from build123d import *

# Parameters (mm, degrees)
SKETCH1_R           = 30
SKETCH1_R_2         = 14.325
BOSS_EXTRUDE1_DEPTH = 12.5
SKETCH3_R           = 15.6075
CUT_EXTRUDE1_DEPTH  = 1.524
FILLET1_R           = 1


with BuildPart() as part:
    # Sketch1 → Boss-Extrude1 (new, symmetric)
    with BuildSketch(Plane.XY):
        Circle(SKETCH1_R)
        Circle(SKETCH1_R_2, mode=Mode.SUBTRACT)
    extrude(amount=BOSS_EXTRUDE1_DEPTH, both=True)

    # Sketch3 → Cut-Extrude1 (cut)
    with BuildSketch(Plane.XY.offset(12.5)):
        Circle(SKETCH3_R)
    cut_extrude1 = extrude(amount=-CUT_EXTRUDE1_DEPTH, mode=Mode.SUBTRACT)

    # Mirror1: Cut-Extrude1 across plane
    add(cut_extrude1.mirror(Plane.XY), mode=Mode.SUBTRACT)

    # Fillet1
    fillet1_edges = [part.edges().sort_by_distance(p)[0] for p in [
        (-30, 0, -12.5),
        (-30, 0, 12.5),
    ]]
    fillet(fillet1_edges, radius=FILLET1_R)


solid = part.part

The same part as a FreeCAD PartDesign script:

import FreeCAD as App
import Part
import Sketcher
Q = App.Units.Quantity


def edges_at(feature, points):
    """Names of the edges that pass closest to the given points."""
    edges = feature.Shape.Edges
    near = lambda p: min(range(len(edges)), key=lambda i: edges[i].distToShape(Part.Vertex(*p))[0])
    return sorted({f"Edge{near(p) + 1}" for p in points})

doc = App.newDocument("Part")
body = doc.addObject("PartDesign::Body", "Body")

# Sketch on XY plane
sketch1 = body.newObject("Sketcher::SketchObject", "Sketch")
sketch1.AttachmentSupport = (doc.getObject("XY_Plane"), [""])
sketch1.MapMode = "FlatFace"
sketch1.addGeometry([
    Part.Circle(App.Vector(0, 0, 0), App.Vector(0, 0, 1), 30),
    Part.Circle(App.Vector(0, 0, 0), App.Vector(0, 0, 1), 14.325),
], False)
sketch1.addConstraint([
    Sketcher.Constraint("Coincident", 0, 3, -1, 1),
    Sketcher.Constraint("Coincident", 1, 3, -1, 1),
    Sketcher.Constraint("Diameter", 0, Q("60 mm")),
    Sketcher.Constraint("Diameter", 1, Q("28.65 mm")),
])
pad1 = body.newObject("PartDesign::Pad", "Pad")
pad1.Profile = sketch1
pad1.Length = 25
pad1.Midplane = True

# Sketch on XY plane
sketch2 = body.newObject("Sketcher::SketchObject", "Sketch001")
sketch2.AttachmentSupport = (doc.getObject("XY_Plane"), [""])
sketch2.MapMode = "FlatFace"
sketch2.AttachmentOffset = App.Placement(App.Vector(0, 0, 12.5), App.Rotation())
sketch2.addGeometry(Part.Circle(App.Vector(0, 0, 0), App.Vector(0, 0, 1), 15.6075), False)
sketch2.addConstraint([
    Sketcher.Constraint("Coincident", 0, 3, -1, 1),
    Sketcher.Constraint("Diameter", 0, Q("31.215 mm")),
])
pocket1 = body.newObject("PartDesign::Pocket", "Pocket")
pocket1.Profile = sketch2
pocket1.Length = 1.524
doc.recompute()

mirrored = body.newObject("PartDesign::Mirrored", "Mirrored")
mirrored.Originals = [pocket1]
mirrored.MirrorPlane = (doc.getObject("XY_Plane"), [""])
body.Tip = mirrored
doc.recompute()

fillet = body.newObject("PartDesign::Fillet", "Fillet")
fillet.Base = (mirrored, edges_at(mirrored, [(-30, 0, -12.5), (-30, 0, 12.5)]))
fillet.Radius = 1

doc.recompute()
